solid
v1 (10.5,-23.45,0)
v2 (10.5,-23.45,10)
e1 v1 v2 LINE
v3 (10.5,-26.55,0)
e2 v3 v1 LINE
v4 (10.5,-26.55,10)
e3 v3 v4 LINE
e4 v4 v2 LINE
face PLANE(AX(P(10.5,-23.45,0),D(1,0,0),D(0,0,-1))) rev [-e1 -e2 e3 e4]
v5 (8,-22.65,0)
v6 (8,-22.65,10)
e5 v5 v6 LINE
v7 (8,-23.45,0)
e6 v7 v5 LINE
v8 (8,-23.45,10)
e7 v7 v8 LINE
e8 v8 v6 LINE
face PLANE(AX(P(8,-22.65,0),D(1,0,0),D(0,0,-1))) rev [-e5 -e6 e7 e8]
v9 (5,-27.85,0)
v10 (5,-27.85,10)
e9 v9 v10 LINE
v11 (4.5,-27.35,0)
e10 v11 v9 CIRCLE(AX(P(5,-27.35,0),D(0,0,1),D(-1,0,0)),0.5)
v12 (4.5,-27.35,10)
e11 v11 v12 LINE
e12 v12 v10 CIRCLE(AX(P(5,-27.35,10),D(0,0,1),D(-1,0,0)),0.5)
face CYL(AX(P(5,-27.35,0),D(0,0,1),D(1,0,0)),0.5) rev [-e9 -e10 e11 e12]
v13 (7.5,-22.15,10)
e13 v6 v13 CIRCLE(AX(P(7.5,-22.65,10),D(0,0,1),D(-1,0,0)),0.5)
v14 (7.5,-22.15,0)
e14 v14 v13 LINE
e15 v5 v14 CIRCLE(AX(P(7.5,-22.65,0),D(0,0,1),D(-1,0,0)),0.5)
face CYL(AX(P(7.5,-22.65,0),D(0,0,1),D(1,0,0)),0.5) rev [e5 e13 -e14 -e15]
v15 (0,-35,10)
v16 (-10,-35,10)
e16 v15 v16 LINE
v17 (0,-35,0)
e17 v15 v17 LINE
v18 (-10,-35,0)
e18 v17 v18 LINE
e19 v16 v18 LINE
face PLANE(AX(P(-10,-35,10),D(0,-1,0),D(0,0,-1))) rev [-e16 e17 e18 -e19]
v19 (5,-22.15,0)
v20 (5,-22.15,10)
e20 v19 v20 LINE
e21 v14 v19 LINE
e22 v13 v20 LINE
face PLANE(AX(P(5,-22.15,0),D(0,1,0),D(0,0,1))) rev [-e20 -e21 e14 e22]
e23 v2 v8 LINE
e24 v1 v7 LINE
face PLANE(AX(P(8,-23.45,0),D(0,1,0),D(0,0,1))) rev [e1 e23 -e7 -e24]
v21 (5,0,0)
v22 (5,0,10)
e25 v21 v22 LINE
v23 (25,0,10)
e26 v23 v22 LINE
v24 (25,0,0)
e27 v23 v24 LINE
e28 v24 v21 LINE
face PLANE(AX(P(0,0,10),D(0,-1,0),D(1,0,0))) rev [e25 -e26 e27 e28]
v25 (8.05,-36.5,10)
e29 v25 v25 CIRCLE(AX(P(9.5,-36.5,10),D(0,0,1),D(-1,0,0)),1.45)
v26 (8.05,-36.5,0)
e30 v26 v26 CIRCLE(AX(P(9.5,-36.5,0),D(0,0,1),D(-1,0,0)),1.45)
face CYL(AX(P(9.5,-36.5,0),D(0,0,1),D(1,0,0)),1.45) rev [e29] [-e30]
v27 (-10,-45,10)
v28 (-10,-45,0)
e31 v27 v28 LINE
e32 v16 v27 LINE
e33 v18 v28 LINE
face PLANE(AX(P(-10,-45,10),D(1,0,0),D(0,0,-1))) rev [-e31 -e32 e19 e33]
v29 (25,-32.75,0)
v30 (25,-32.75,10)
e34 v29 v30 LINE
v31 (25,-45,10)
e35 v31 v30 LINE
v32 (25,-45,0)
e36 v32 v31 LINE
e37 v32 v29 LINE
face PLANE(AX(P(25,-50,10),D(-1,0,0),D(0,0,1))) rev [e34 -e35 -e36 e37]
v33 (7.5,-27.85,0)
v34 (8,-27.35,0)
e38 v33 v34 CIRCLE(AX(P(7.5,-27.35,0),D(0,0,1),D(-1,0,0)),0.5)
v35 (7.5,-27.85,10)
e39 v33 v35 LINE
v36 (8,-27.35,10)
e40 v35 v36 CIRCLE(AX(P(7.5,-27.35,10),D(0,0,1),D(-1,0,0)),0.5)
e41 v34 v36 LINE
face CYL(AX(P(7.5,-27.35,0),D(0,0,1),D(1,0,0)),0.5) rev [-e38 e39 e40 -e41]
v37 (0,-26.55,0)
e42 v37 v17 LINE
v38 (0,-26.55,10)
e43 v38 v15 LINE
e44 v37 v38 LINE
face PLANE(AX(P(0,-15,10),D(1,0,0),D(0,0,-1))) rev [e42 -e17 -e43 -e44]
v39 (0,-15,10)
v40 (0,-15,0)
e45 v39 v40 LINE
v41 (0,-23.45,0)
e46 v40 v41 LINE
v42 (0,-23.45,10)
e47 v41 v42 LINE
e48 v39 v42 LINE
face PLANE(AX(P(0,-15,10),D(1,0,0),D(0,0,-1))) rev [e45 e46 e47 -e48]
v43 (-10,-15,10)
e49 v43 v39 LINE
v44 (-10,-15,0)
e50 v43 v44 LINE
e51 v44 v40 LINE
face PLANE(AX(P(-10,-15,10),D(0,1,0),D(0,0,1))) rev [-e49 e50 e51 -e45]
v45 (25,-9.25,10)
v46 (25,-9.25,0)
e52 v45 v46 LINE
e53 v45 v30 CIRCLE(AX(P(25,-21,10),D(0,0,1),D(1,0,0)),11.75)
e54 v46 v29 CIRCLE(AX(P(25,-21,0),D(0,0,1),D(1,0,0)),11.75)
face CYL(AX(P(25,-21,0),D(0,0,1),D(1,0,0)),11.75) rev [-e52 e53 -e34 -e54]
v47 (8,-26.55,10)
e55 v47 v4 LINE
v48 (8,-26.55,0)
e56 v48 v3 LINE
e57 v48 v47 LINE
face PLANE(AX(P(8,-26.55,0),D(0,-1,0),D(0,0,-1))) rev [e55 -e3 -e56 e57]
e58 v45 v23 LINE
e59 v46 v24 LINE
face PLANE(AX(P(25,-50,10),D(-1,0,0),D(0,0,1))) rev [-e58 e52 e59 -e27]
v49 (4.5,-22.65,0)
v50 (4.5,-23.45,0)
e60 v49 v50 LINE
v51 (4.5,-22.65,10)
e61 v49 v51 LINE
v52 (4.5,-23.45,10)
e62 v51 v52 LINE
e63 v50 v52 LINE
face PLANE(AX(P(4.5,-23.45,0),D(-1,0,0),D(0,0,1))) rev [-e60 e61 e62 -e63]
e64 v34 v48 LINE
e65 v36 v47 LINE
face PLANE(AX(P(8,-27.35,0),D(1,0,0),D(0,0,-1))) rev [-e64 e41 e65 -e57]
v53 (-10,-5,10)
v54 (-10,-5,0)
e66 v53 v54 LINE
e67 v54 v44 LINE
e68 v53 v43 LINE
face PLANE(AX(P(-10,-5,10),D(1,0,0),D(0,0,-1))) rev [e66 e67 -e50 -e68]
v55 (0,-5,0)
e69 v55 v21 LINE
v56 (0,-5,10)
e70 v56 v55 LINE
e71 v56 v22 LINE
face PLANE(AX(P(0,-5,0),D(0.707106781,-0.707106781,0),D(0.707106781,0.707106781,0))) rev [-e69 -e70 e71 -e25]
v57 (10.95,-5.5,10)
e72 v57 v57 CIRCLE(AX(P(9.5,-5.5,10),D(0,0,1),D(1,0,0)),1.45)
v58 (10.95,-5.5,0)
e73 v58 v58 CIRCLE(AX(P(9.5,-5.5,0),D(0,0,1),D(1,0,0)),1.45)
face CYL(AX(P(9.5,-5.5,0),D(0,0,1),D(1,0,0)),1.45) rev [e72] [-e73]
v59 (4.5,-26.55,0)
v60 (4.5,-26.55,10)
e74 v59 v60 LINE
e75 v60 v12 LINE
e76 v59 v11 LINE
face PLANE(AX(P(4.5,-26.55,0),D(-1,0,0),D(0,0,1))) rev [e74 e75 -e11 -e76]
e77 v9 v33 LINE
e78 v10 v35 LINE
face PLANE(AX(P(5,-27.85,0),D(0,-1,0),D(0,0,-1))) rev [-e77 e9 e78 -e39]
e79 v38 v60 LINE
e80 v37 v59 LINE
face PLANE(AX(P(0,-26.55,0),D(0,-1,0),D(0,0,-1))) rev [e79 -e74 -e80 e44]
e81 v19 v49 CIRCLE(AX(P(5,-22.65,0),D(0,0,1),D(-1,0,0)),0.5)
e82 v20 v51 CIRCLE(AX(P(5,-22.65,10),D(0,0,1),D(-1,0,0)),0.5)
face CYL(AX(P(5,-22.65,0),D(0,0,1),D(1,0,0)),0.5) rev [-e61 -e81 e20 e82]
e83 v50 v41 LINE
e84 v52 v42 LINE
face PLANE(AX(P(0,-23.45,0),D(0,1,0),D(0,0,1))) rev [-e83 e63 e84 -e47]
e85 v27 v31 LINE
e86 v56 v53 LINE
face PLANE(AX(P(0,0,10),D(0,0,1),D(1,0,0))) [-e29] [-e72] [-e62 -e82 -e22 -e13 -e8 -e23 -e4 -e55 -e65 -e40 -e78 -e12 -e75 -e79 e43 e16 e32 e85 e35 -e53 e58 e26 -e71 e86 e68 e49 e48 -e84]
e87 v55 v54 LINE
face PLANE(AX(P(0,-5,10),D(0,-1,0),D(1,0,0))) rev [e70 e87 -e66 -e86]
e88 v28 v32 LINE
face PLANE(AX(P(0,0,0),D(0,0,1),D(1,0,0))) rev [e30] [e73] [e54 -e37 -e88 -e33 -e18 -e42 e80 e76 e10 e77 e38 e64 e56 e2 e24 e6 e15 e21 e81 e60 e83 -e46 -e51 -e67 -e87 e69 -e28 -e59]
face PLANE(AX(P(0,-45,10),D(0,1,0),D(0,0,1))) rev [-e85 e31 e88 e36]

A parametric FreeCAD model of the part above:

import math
import FreeCAD as App
import Part
import Sketcher
from FreeCAD import Vector

doc = App.newDocument("Part")
body = doc.addObject("PartDesign::Body", "Body")

sketch1 = body.newObject("Sketcher::SketchObject", "Sketch")
sketch1.AttachmentSupport = (doc.getObject("XY_Plane"), [""])
sketch1.MapMode = "FlatFace"
sketch1.addGeometry([
    Part.LineSegment(Vector(0, 0, 0), Vector(0, -5, 0)),
    Part.LineSegment(Vector(0, -5, 0), Vector(-10, -5, 0)),
    Part.LineSegment(Vector(-10, -5, 0), Vector(-10, -15, 0)),
    Part.LineSegment(Vector(-10, -15, 0), Vector(0, -15, 0)),
    Part.LineSegment(Vector(0, -15, 0), Vector(0, -35, 0)),
    Part.LineSegment(Vector(0, -35, 0), Vector(-10, -35, 0)),
    Part.LineSegment(Vector(-10, -35, 0), Vector(-10, -45, 0)),
    Part.LineSegment(Vector(-10, -45, 0), Vector(0, -45, 0)),
    Part.LineSegment(Vector(0, -45, 0), Vector(0, -50, 0)),
    Part.LineSegment(Vector(0, -50, 0), Vector(25, -50, 0)),
    Part.LineSegment(Vector(25, -50, 0), Vector(25, 0, 0)),
    Part.LineSegment(Vector(25, 0, 0), Vector(0, 0, 0)),
], False)
sketch1.addConstraint([
    Sketcher.Constraint("Coincident", 0, 2, 1, 1),
    Sketcher.Constraint("Coincident", 1, 2, 2, 1),
    Sketcher.Constraint("Coincident", 2, 2, 3, 1),
    Sketcher.Constraint("Coincident", 3, 2, 4, 1),
    Sketcher.Constraint("Coincident", 4, 2, 5, 1),
    Sketcher.Constraint("Coincident", 5, 2, 6, 1),
    Sketcher.Constraint("Coincident", 6, 2, 7, 1),
    Sketcher.Constraint("Coincident", 7, 2, 8, 1),
    Sketcher.Constraint("Coincident", 8, 2, 9, 1),
    Sketcher.Constraint("Coincident", 9, 2, 10, 1),
    Sketcher.Constraint("Coincident", 10, 2, 11, 1),
    Sketcher.Constraint("Coincident", 11, 2, 0, 1),
    Sketcher.Constraint("Vertical", 0),
    Sketcher.Constraint("Horizontal", 1),
    Sketcher.Constraint("Vertical", 2),
    Sketcher.Constraint("Horizontal", 3),
    Sketcher.Constraint("Vertical", 4),
    Sketcher.Constraint("Horizontal", 5),
    Sketcher.Constraint("Vertical", 6),
    Sketcher.Constraint("Horizontal", 7),
    Sketcher.Constraint("Vertical", 8),
    Sketcher.Constraint("Horizontal", 9),
    Sketcher.Constraint("Vertical", 10),
    Sketcher.Constraint("Horizontal", 11),
    Sketcher.Constraint("Coincident", 11, 2, -1, 1),
    Sketcher.Constraint("PointOnObject", 3, 2, -2),
    Sketcher.Constraint("PointOnObject", 7, 2, -2),
    Sketcher.Constraint("Vertical", 2, 2, 5, 2),
    Sketcher.Constraint("Equal", 7, 2),
    Sketcher.Constraint("Equal", 2, 6),
    Sketcher.Constraint("Equal", 0, 8),
    Sketcher.Constraint("DistanceX", 1, 2, 1, 1, 10.0),
    Sketcher.Constraint("DistanceX", 9, 1, 9, 2, 25.0),
    Sketcher.Constraint("DistanceY", 0, 2, 0, 1, 5.0),
    Sketcher.Constraint("DistanceY", 4, 2, 4, 1, 20.0),
])
pad1 = body.newObject("PartDesign::Pad", "Pad")
pad1.Profile = sketch1
pad1.Length = 10

sketch2 = body.newObject("Sketcher::SketchObject", "Sketch001")
sketch2.AttachmentSupport = (doc.getObject("XY_Plane"), [""])
sketch2.MapMode = "FlatFace"
sketch2.AttachmentOffset = App.Placement(Vector(0, 0, 10), App.Rotation())
sketch2.addGeometry([
    Part.Circle(Vector(25, -21, 0), Vector(0, 0, 1), 11.8),
    Part.Circle(Vector(9.5, -5.5, 0), Vector(0, 0, 1), 1.4),
    Part.Circle(Vector(9.5, -36.5, 0), Vector(0, 0, 1), 1.4),
], False)
sketch2.addConstraint([
    Sketcher.Constraint("Equal", 1, 2),
    Sketcher.Constraint("Vertical", 1, 3, 2, 3),
    Sketcher.Constraint("Diameter", 0, 23.5),
    Sketcher.Constraint("Diameter", 1, 2.9),
    Sketcher.Constraint("DistanceX", -1, 1, 0, 3, 25.0),
    Sketcher.Constraint("DistanceY", 0, 3, -1, 1, 21.0),
    Sketcher.Constraint("DistanceY", 2, 3, 1, 3, 31.0),
    Sketcher.Constraint("DistanceX", -1, 1, 1, 3, 9.5),
    Sketcher.Constraint("DistanceY", 1, 3, -1, 1, 5.5),
])
pocket1 = body.newObject("PartDesign::Pocket", "Pocket")
pocket1.Profile = sketch2
pocket1.Type = "ThroughAll"

sketch3 = body.newObject("Sketcher::SketchObject", "Sketch002")
sketch3.AttachmentSupport = (doc.getObject("XY_Plane"), [""])
sketch3.MapMode = "FlatFace"
sketch3.AttachmentOffset = App.Placement(Vector(0, 0, 10), App.Rotation())
sketch3.addGeometry([
    Part.LineSegment(Vector(0, -23.45, 0), Vector(0, -26.55, 0)),
    Part.LineSegment(Vector(0, -26.55, 0), Vector(4.5, -26.55, 0)),
    Part.LineSegment(Vector(4.5, -26.55, 0), Vector(4.5, -27.35, 0)),
    Part.ArcOfCircle(Part.Circle(Vector(5, -27.35, 0), Vector(0, 0, 1), 0.5), math.radians(180), math.radians(270)),
    Part.LineSegment(Vector(5, -27.85, 0), Vector(7.5, -27.85, 0)),
    Part.ArcOfCircle(Part.Circle(Vector(7.5, -27.35, 0), Vector(0, 0, 1), 0.5), math.radians(-90), math.radians(0)),
    Part.LineSegment(Vector(8, -27.35, 0), Vector(8, -26.55, 0)),
    Part.LineSegment(Vector(8, -26.55, 0), Vector(10.5, -26.55, 0)),
    Part.LineSegment(Vector(10.5, -26.55, 0), Vector(10.5, -23.45, 0)),
    Part.LineSegment(Vector(10.5, -23.45, 0), Vector(8, -23.45, 0)),
    Part.LineSegment(Vector(8, -23.45, 0), Vector(8, -22.65, 0)),
    Part.ArcOfCircle(Part.Circle(Vector(7.5, -22.65, 0), Vector(0, 0, 1), 0.5), math.radians(0), math.radians(90)),
    Part.LineSegment(Vector(7.5, -22.15, 0), Vector(5, -22.15, 0)),
    Part.ArcOfCircle(Part.Circle(Vector(5, -22.65, 0), Vector(0, 0, 1), 0.5), math.radians(90), math.radians(180)),
    Part.LineSegment(Vector(4.5, -22.65, 0), Vector(4.5, -23.45, 0)),
    Part.LineSegment(Vector(4.5, -23.45, 0), Vector(0, -23.45, 0)),
], False)
sketch3.addConstraint([
    Sketcher.Constraint("Coincident", 0, 2, 1, 1),
    Sketcher.Constraint("Coincident", 1, 2, 2, 1),
    Sketcher.Constraint("Tangent", 2, 2, 3, 1),
    Sketcher.Constraint("Tangent", 3, 2, 4, 1),
    Sketcher.Constraint("Tangent", 4, 2, 5, 1),
    Sketcher.Constraint("Tangent", 5, 2, 6, 1),
    Sketcher.Constraint("Coincident", 6, 2, 7, 1),
    Sketcher.Constraint("Coincident", 7, 2, 8, 1),
    Sketcher.Constraint("Coincident", 8, 2, 9, 1),
    Sketcher.Constraint("Coincident", 9, 2, 10, 1),
    Sketcher.Constraint("Tangent", 10, 2, 11, 1),
    Sketcher.Constraint("Tangent", 11, 2, 12, 1),
    Sketcher.Constraint("Tangent", 12, 2, 13, 1),
    Sketcher.Constraint("Tangent", 13, 2, 14, 1),
    Sketcher.Constraint("Coincident", 14, 2, 15, 1),
    Sketcher.Constraint("Coincident", 15, 2, 0, 1),
    Sketcher.Constraint("Vertical", 0),
    Sketcher.Constraint("Horizontal", 1),
    Sketcher.Constraint("Vertical", 2),
    Sketcher.Constraint("Horizontal", 4),
    Sketcher.Constraint("Vertical", 6),
    Sketcher.Constraint("Horizontal", 7),
    Sketcher.Constraint("Vertical", 8),
    Sketcher.Constraint("Horizontal", 9),
    Sketcher.Constraint("Vertical", 10),
    Sketcher.Constraint("Horizontal", 12),
    Sketcher.Constraint("Vertical", 14),
    Sketcher.Constraint("Horizontal", 15),
    Sketcher.Constraint("Equal", 3, 5),
    Sketcher.Constraint("Equal", 5, 11),
    Sketcher.Constraint("Equal", 11, 13),
    Sketcher.Constraint("PointOnObject", 0, 2, -2),
    Sketcher.Constraint("Horizontal", 1, 2, 6, 2),
    Sketcher.Constraint("Horizontal", 9, 2, 14, 2),
    Sketcher.Constraint("Vertical", 5, 3, 11, 3),
    Sketcher.Constraint("Vertical", 3, 3, 13, 3),
    Sketcher.Constraint("Equal", 4, 7),
    Sketcher.Constraint("Equal", 6, 10),
    Sketcher.Constraint("Radius", 3, 0.5),
    Sketcher.Constraint("DistanceX", 1, 1, 1, 2, 4.5),
    Sketcher.Constraint("DistanceX", 4, 1, 4, 2, 2.5),
    Sketcher.Constraint("DistanceY", 0, 2, 0, 1, 3.1),
    Sketcher.Constraint("DistanceY", 2, 2, 2, 1, 0.8),
    Sketcher.Constraint("DistanceY", 3, 3, -1, 1, 27.35),
])
pocket2 = body.newObject("PartDesign::Pocket", "Pocket001")
pocket2.Profile = sketch3
pocket2.Type = "ThroughAll"

sketch4 = body.newObject("Sketcher::SketchObject", "Sketch003")
sketch4.AttachmentSupport = (doc.getObject("XY_Plane"), [""])
sketch4.MapMode = "FlatFace"
sketch4.AttachmentOffset = App.Placement(Vector(0, 0, 10), App.Rotation())
sketch4.addGeometry([
    Part.LineSegment(Vector(0, -45, 0), Vector(0, -50, 0)),
    Part.LineSegment(Vector(0, -50, 0), Vector(25, -50, 0)),
    Part.LineSegment(Vector(25, -50, 0), Vector(25, -45, 0)),
    Part.LineSegment(Vector(25, -45, 0), Vector(0, -45, 0)),
    Part.LineSegment(Vector(0, -5, 0), Vector(5, 0, 0)),
    Part.LineSegment(Vector(5, 0, 0), Vector(0, 0, 0)),
    Part.LineSegment(Vector(0, 0, 0), Vector(0, -5, 0)),
], False)
sketch4.addConstraint([
    Sketcher.Constraint("Coincident", 0, 2, 1, 1),
    Sketcher.Constraint("Coincident", 1, 2, 2, 1),
    Sketcher.Constraint("Coincident", 2, 2, 3, 1),
    Sketcher.Constraint("Coincident", 3, 2, 0, 1),
    Sketcher.Constraint("Coincident", 4, 2, 5, 1),
    Sketcher.Constraint("Coincident", 5, 2, 6, 1),
    Sketcher.Constraint("Coincident", 6, 2, 4, 1),
    Sketcher.Constraint("Vertical", 0),
    Sketcher.Constraint("Horizontal", 1),
    Sketcher.Constraint("Vertical", 2),
    Sketcher.Constraint("Horizontal", 3),
    Sketcher.Constraint("Horizontal", 5),
    Sketcher.Constraint("Vertical", 6),
    Sketcher.Constraint("Coincident", 5, 2, -1, 1),
    Sketcher.Constraint("PointOnObject", 0, 2, -2),
    Sketcher.Constraint("Equal", 5, 0),
    Sketcher.Constraint("Equal", 2, 6),
    Sketcher.Constraint("DistanceX", 1, 1, 1, 2, 25.0),
    Sketcher.Constraint("DistanceX", 5, 2, 5, 1, 5.0),
    Sketcher.Constraint("DistanceY", 0, 2, -1, 1, 50.0),
])
pocket3 = body.newObject("PartDesign::Pocket", "Pocket002")
pocket3.Profile = sketch4
pocket3.Type = "ThroughAll"

doc.recompute()
